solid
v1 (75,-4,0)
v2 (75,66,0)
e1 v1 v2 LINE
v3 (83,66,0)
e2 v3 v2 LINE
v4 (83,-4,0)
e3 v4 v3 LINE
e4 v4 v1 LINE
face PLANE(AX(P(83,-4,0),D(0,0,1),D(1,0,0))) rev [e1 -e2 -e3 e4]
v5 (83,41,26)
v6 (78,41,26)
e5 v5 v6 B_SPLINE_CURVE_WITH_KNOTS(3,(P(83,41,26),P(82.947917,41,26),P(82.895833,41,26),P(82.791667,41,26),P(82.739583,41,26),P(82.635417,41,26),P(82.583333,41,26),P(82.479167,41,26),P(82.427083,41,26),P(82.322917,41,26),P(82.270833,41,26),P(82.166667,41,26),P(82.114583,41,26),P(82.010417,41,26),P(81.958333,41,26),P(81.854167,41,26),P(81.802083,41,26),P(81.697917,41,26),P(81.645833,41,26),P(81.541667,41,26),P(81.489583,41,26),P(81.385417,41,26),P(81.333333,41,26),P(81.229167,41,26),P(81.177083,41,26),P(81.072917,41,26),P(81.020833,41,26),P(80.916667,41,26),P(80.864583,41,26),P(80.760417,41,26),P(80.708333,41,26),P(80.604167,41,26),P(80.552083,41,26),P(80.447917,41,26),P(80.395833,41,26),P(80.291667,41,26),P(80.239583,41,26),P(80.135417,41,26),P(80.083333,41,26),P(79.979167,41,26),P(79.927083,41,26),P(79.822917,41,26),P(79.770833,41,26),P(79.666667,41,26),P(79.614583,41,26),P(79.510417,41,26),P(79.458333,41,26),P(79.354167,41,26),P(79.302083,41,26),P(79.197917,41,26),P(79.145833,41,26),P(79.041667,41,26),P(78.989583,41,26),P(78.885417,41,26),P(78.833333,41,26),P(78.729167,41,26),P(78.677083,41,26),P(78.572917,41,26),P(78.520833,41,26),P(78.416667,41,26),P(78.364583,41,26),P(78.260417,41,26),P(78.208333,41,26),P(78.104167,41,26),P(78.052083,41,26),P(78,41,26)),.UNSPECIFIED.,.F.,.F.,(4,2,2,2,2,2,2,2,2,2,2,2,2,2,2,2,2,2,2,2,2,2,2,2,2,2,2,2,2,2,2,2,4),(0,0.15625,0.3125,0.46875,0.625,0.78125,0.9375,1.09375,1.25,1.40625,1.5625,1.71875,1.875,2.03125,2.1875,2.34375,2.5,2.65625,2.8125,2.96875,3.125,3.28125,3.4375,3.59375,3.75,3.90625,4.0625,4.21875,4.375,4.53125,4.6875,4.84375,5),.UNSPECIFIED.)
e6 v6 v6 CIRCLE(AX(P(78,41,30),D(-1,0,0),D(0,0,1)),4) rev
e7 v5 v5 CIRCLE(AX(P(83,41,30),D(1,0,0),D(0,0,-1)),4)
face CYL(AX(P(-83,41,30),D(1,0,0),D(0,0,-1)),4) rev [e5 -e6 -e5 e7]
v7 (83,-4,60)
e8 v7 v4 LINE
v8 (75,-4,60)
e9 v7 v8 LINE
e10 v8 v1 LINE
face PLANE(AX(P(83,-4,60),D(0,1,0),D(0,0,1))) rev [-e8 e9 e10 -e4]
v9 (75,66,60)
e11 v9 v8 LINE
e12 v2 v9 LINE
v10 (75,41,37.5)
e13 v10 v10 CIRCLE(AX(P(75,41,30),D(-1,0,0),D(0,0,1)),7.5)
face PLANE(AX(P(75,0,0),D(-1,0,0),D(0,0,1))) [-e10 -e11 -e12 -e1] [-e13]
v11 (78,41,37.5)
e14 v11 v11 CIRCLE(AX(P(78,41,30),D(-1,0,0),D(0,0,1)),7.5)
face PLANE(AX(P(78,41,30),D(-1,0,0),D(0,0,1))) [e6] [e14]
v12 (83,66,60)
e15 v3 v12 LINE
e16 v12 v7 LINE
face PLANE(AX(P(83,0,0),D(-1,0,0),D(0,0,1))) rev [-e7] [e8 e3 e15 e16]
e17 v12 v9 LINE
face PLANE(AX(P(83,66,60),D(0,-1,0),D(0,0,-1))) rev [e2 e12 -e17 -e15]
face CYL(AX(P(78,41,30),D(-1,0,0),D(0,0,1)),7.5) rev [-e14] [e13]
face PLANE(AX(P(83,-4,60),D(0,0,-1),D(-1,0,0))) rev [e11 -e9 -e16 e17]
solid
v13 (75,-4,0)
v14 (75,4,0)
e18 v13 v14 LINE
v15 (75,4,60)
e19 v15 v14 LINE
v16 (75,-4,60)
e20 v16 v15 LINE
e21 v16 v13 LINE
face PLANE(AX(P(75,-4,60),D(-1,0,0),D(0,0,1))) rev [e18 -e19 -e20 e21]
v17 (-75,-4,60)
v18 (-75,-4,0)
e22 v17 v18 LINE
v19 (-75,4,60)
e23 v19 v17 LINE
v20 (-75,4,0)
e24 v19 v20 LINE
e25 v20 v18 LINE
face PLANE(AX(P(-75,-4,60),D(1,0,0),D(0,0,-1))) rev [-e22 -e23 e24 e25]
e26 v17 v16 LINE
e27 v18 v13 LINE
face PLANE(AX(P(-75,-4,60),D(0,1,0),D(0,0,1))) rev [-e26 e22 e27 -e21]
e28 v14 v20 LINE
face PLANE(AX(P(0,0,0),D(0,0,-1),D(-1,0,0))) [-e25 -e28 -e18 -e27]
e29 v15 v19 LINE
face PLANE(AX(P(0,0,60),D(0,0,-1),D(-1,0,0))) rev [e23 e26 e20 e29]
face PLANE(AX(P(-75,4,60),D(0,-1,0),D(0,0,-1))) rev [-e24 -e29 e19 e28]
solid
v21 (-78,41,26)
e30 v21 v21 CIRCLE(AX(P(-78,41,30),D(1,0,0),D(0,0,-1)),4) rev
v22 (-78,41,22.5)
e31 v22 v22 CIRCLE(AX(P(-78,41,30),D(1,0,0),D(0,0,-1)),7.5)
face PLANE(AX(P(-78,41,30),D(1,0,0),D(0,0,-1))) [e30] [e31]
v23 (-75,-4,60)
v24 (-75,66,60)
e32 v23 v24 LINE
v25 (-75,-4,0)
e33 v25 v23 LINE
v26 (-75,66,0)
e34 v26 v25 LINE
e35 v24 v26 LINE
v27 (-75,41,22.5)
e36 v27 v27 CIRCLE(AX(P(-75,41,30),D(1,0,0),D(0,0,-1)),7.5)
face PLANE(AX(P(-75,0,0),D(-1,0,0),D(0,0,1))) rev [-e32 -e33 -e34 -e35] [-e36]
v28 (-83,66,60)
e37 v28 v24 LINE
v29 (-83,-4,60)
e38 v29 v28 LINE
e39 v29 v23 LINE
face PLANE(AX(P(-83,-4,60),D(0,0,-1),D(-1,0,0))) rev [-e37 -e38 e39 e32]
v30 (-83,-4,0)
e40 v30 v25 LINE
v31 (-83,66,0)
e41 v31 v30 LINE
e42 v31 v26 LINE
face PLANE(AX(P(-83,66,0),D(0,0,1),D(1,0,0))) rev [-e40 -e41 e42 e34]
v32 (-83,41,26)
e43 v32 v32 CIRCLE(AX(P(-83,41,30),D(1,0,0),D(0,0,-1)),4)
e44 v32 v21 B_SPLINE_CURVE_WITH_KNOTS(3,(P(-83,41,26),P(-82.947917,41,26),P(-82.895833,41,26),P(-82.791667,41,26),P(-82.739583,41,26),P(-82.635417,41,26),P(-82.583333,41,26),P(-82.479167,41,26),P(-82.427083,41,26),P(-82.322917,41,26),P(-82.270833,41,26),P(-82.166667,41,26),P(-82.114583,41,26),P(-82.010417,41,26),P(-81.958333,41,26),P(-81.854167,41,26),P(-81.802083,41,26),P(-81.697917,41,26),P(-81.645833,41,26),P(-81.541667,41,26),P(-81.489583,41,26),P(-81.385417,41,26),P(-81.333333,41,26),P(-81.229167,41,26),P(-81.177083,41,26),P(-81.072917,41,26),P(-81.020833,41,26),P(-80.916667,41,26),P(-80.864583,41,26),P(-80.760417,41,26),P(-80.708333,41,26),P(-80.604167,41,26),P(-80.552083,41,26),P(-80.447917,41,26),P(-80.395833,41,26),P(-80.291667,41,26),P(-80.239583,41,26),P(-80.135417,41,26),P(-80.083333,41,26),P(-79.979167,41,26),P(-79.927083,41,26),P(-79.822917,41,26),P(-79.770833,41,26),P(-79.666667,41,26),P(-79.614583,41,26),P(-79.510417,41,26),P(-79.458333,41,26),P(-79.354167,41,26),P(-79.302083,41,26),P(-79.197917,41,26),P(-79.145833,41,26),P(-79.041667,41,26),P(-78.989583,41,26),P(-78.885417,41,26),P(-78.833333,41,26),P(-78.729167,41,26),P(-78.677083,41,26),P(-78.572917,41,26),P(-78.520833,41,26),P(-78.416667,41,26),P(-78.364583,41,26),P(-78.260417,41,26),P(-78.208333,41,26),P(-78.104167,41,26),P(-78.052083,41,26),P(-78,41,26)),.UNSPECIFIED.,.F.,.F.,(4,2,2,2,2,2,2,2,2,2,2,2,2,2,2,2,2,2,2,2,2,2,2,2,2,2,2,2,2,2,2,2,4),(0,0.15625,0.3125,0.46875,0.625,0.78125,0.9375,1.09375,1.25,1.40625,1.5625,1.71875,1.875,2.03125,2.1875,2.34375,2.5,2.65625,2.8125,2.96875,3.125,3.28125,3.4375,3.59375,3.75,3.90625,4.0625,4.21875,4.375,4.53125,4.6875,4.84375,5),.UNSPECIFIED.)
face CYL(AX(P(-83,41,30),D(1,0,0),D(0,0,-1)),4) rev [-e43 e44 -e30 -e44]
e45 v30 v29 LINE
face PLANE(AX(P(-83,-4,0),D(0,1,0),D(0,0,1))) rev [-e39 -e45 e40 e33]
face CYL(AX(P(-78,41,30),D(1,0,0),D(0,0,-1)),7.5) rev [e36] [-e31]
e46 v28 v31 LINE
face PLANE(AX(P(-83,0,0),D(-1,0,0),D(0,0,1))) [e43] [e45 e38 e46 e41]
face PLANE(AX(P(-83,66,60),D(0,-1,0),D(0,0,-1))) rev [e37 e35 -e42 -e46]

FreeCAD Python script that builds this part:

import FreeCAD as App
import Part
import Sketcher
from FreeCAD import Vector
Q = App.Units.Quantity

doc = App.newDocument("Part")
body = doc.addObject("PartDesign::Body", "Body")

sketch1 = doc.addObject("Sketcher::SketchObject", "Sketch")
body.addObject(sketch1)
sketch1.AttachmentSupport = (doc.XY_Plane, [""])
sketch1.MapMode = "FlatFace"
sketch1.addGeometry(Part.LineSegment(Vector(-75, 4, 0), Vector(-75, -4, 0)), False)
sketch1.addGeometry(Part.LineSegment(Vector(-75, -4, 0), Vector(75, -4, 0)), False)
sketch1.addGeometry(Part.LineSegment(Vector(75, -4, 0), Vector(75, 4, 0)), False)
sketch1.addGeometry(Part.LineSegment(Vector(75, 4, 0), Vector(-75, 4, 0)), False)
sketch1.addConstraint(Sketcher.Constraint("Coincident", 0, 2, 1, 1))
sketch1.addConstraint(Sketcher.Constraint("Coincident", 1, 2, 2, 1))
sketch1.addConstraint(Sketcher.Constraint("Coincident", 2, 2, 3, 1))
sketch1.addConstraint(Sketcher.Constraint("Coincident", 3, 2, 0, 1))
sketch1.addConstraint(Sketcher.Constraint("Vertical", 0))
sketch1.addConstraint(Sketcher.Constraint("Horizontal", 1))
sketch1.addConstraint(Sketcher.Constraint("Vertical", 2))
sketch1.addConstraint(Sketcher.Constraint("Horizontal", 3))
sketch1.addConstraint(Sketcher.Constraint("Symmetric", 0, 2, 2, 2, -1, 1))
sketch1.addConstraint(Sketcher.Constraint("DistanceX", 1, 1, 1, 2, Q("150 mm")))
sketch1.addConstraint(Sketcher.Constraint("DistanceY", 0, 2, 0, 1, Q("8 mm")))
pad1 = doc.addObject("PartDesign::Pad", "Pad")
body.addObject(pad1)
pad1.Profile = sketch1
pad1.Length = 60
body2 = doc.addObject("PartDesign::Body", "Body001")

sketch2 = doc.addObject("Sketcher::SketchObject", "Sketch001")
body2.addObject(sketch2)
sketch2.AttachmentSupport = (doc.getObject("YZ_Plane001"), [""])
sketch2.MapMode = "FlatFace"
sketch2.AttachmentOffset = App.Placement(Vector(0, 0, 75), App.Rotation())
sketch2.addGeometry(Part.LineSegment(Vector(66, 60, 0), Vector(-4, 60, 0)), False)
sketch2.addGeometry(Part.LineSegment(Vector(-4, 60, 0), Vector(-4, 0, 0)), False)
sketch2.addGeometry(Part.LineSegment(Vector(-4, 0, 0), Vector(66, 0, 0)), False)
sketch2.addGeometry(Part.LineSegment(Vector(66, 0, 0), Vector(66, 60, 0)), False)
sketch2.addConstraint(Sketcher.Constraint("Coincident", 0, 2, 1, 1))
sketch2.addConstraint(Sketcher.Constraint("Coincident", 1, 2, 2, 1))
sketch2.addConstraint(Sketcher.Constraint("Coincident", 2, 2, 3, 1))
sketch2.addConstraint(Sketcher.Constraint("Coincident", 3, 2, 0, 1))
sketch2.addConstraint(Sketcher.Constraint("Horizontal", 0))
sketch2.addConstraint(Sketcher.Constraint("Vertical", 1))
sketch2.addConstraint(Sketcher.Constraint("Horizontal", 2))
sketch2.addConstraint(Sketcher.Constraint("Vertical", 3))
sketch2.addConstraint(Sketcher.Constraint("PointOnObject", 1, 2, -1))
sketch2.addConstraint(Sketcher.Constraint("DistanceX", 0, 2, 0, 1, Q("70 mm")))
sketch2.addConstraint(Sketcher.Constraint("DistanceY", 1, 2, 1, 1, Q("60 mm")))
sketch2.addConstraint(Sketcher.Constraint("DistanceX", 0, 2, -1, 1, Q("4 mm")))
pad2 = doc.addObject("PartDesign::Pad", "Pad001")
body2.addObject(pad2)
pad2.Profile = sketch2
pad2.Length = 8
body3 = doc.addObject("PartDesign::Body", "Body002")

sketch3 = doc.addObject("Sketcher::SketchObject", "Sketch002")
body3.addObject(sketch3)
sketch3.AttachmentSupport = (doc.getObject("YZ_Plane002"), [""])
sketch3.MapMode = "FlatFace"
sketch3.AttachmentOffset = App.Placement(Vector(0, 0, -75), App.Rotation())
sketch3.addGeometry(Part.LineSegment(Vector(66, 0, 0), Vector(-4, 0, 0)), False)
sketch3.addGeometry(Part.LineSegment(Vector(-4, 0, 0), Vector(-4, 60, 0)), False)
sketch3.addGeometry(Part.LineSegment(Vector(-4, 60, 0), Vector(66, 60, 0)), False)
sketch3.addGeometry(Part.LineSegment(Vector(66, 60, 0), Vector(66, 0, 0)), False)
sketch3.addConstraint(Sketcher.Constraint("Coincident", 0, 2, 1, 1))
sketch3.addConstraint(Sketcher.Constraint("Coincident", 1, 2, 2, 1))
sketch3.addConstraint(Sketcher.Constraint("Coincident", 2, 2, 3, 1))
sketch3.addConstraint(Sketcher.Constraint("Coincident", 3, 2, 0, 1))
sketch3.addConstraint(Sketcher.Constraint("Horizontal", 0))
sketch3.addConstraint(Sketcher.Constraint("Vertical", 1))
sketch3.addConstraint(Sketcher.Constraint("Horizontal", 2))
sketch3.addConstraint(Sketcher.Constraint("Vertical", 3))
sketch3.addConstraint(Sketcher.Constraint("PointOnObject", 0, 2, -1))
sketch3.addConstraint(Sketcher.Constraint("DistanceX", 0, 2, 0, 1, Q("70 mm")))
sketch3.addConstraint(Sketcher.Constraint("DistanceY", 1, 1, 1, 2, Q("60 mm")))
sketch3.addConstraint(Sketcher.Constraint("DistanceX", 0, 2, -1, 1, Q("4 mm")))
pad3 = doc.addObject("PartDesign::Pad", "Pad002")
body3.addObject(pad3)
pad3.Profile = sketch3
pad3.Length = 8
pad3.Reversed = True
body4 = doc.addObject("PartDesign::Body", "Body003")

sketch4 = doc.addObject("Sketcher::SketchObject", "Sketch003")
body4.addObject(sketch4)
sketch4.AttachmentSupport = (doc.getObject("YZ_Plane003"), [""])
sketch4.MapMode = "FlatFace"
sketch4.AttachmentOffset = App.Placement(Vector(0, 0, 83), App.Rotation())
sketch4.addGeometry(Part.Circle(Vector(41, 30, 0), Vector(0, 0, 1), 4), False)
sketch4.addConstraint(Sketcher.Constraint("Diameter", 0, Q("8 mm")))
sketch4.addConstraint(Sketcher.Constraint("DistanceX", -1, 1, 0, 3, Q("41 mm")))
sketch4.addConstraint(Sketcher.Constraint("DistanceY", -1, 1, 0, 3, Q("30 mm")))
pad4 = doc.addObject("PartDesign::Pad", "Pad003")
body4.addObject(pad4)
pad4.Profile = sketch4
pad4.Length = 189.446279
pad4.Reversed = True
doc.recompute()

body5 = doc.addObject("PartDesign::Body", "Body004")
body5.BaseFeature = body4
boolean = doc.addObject("PartDesign::Boolean", "Boolean")
body2.addObject(boolean)
boolean.Type = "Cut"
boolean.addObjects([body5])
doc.recompute()

sketch5 = doc.addObject("Sketcher::SketchObject", "Sketch004")
body2.addObject(sketch5)
sketch5.AttachmentSupport = (doc.getObject("YZ_Plane001"), [""])
sketch5.MapMode = "FlatFace"
sketch5.AttachmentOffset = App.Placement(Vector(0, 0, 75), App.Rotation())
sketch5.addGeometry(Part.Circle(Vector(41, 30, 0), Vector(0, 0, 1), 8), False)
sketch5.addConstraint(Sketcher.Constraint("Diameter", 0, Q("15 mm")))
sketch5.addConstraint(Sketcher.Constraint("DistanceX", -1, 1, 0, 3, Q("41 mm")))
sketch5.addConstraint(Sketcher.Constraint("DistanceY", -1, 1, 0, 3, Q("30 mm")))
pocket1 = doc.addObject("PartDesign::Pocket", "Pocket")
body2.addObject(pocket1)
pocket1.Profile = sketch5
pocket1.Length = 3
pocket1.Reversed = True
doc.recompute()

boolean2 = doc.addObject("PartDesign::Boolean", "Boolean001")
body3.addObject(boolean2)
boolean2.Type = "Cut"
boolean2.addObjects([body4])

sketch6 = doc.addObject("Sketcher::SketchObject", "Sketch005")
body3.addObject(sketch6)
sketch6.AttachmentSupport = (doc.getObject("YZ_Plane002"), [""])
sketch6.MapMode = "FlatFace"
sketch6.AttachmentOffset = App.Placement(Vector(0, 0, -75), App.Rotation())
sketch6.addGeometry(Part.Circle(Vector(41, 30, 0), Vector(0, 0, 1), 8), False)
sketch6.addConstraint(Sketcher.Constraint("Diameter", 0, Q("15 mm")))
sketch6.addConstraint(Sketcher.Constraint("DistanceX", -1, 1, 0, 3, Q("41 mm")))
sketch6.addConstraint(Sketcher.Constraint("DistanceY", -1, 1, 0, 3, Q("30 mm")))
pocket2 = doc.addObject("PartDesign::Pocket", "Pocket001")
body3.addObject(pocket2)
pocket2.Profile = sketch6
pocket2.Length = 3

doc.recompute()
